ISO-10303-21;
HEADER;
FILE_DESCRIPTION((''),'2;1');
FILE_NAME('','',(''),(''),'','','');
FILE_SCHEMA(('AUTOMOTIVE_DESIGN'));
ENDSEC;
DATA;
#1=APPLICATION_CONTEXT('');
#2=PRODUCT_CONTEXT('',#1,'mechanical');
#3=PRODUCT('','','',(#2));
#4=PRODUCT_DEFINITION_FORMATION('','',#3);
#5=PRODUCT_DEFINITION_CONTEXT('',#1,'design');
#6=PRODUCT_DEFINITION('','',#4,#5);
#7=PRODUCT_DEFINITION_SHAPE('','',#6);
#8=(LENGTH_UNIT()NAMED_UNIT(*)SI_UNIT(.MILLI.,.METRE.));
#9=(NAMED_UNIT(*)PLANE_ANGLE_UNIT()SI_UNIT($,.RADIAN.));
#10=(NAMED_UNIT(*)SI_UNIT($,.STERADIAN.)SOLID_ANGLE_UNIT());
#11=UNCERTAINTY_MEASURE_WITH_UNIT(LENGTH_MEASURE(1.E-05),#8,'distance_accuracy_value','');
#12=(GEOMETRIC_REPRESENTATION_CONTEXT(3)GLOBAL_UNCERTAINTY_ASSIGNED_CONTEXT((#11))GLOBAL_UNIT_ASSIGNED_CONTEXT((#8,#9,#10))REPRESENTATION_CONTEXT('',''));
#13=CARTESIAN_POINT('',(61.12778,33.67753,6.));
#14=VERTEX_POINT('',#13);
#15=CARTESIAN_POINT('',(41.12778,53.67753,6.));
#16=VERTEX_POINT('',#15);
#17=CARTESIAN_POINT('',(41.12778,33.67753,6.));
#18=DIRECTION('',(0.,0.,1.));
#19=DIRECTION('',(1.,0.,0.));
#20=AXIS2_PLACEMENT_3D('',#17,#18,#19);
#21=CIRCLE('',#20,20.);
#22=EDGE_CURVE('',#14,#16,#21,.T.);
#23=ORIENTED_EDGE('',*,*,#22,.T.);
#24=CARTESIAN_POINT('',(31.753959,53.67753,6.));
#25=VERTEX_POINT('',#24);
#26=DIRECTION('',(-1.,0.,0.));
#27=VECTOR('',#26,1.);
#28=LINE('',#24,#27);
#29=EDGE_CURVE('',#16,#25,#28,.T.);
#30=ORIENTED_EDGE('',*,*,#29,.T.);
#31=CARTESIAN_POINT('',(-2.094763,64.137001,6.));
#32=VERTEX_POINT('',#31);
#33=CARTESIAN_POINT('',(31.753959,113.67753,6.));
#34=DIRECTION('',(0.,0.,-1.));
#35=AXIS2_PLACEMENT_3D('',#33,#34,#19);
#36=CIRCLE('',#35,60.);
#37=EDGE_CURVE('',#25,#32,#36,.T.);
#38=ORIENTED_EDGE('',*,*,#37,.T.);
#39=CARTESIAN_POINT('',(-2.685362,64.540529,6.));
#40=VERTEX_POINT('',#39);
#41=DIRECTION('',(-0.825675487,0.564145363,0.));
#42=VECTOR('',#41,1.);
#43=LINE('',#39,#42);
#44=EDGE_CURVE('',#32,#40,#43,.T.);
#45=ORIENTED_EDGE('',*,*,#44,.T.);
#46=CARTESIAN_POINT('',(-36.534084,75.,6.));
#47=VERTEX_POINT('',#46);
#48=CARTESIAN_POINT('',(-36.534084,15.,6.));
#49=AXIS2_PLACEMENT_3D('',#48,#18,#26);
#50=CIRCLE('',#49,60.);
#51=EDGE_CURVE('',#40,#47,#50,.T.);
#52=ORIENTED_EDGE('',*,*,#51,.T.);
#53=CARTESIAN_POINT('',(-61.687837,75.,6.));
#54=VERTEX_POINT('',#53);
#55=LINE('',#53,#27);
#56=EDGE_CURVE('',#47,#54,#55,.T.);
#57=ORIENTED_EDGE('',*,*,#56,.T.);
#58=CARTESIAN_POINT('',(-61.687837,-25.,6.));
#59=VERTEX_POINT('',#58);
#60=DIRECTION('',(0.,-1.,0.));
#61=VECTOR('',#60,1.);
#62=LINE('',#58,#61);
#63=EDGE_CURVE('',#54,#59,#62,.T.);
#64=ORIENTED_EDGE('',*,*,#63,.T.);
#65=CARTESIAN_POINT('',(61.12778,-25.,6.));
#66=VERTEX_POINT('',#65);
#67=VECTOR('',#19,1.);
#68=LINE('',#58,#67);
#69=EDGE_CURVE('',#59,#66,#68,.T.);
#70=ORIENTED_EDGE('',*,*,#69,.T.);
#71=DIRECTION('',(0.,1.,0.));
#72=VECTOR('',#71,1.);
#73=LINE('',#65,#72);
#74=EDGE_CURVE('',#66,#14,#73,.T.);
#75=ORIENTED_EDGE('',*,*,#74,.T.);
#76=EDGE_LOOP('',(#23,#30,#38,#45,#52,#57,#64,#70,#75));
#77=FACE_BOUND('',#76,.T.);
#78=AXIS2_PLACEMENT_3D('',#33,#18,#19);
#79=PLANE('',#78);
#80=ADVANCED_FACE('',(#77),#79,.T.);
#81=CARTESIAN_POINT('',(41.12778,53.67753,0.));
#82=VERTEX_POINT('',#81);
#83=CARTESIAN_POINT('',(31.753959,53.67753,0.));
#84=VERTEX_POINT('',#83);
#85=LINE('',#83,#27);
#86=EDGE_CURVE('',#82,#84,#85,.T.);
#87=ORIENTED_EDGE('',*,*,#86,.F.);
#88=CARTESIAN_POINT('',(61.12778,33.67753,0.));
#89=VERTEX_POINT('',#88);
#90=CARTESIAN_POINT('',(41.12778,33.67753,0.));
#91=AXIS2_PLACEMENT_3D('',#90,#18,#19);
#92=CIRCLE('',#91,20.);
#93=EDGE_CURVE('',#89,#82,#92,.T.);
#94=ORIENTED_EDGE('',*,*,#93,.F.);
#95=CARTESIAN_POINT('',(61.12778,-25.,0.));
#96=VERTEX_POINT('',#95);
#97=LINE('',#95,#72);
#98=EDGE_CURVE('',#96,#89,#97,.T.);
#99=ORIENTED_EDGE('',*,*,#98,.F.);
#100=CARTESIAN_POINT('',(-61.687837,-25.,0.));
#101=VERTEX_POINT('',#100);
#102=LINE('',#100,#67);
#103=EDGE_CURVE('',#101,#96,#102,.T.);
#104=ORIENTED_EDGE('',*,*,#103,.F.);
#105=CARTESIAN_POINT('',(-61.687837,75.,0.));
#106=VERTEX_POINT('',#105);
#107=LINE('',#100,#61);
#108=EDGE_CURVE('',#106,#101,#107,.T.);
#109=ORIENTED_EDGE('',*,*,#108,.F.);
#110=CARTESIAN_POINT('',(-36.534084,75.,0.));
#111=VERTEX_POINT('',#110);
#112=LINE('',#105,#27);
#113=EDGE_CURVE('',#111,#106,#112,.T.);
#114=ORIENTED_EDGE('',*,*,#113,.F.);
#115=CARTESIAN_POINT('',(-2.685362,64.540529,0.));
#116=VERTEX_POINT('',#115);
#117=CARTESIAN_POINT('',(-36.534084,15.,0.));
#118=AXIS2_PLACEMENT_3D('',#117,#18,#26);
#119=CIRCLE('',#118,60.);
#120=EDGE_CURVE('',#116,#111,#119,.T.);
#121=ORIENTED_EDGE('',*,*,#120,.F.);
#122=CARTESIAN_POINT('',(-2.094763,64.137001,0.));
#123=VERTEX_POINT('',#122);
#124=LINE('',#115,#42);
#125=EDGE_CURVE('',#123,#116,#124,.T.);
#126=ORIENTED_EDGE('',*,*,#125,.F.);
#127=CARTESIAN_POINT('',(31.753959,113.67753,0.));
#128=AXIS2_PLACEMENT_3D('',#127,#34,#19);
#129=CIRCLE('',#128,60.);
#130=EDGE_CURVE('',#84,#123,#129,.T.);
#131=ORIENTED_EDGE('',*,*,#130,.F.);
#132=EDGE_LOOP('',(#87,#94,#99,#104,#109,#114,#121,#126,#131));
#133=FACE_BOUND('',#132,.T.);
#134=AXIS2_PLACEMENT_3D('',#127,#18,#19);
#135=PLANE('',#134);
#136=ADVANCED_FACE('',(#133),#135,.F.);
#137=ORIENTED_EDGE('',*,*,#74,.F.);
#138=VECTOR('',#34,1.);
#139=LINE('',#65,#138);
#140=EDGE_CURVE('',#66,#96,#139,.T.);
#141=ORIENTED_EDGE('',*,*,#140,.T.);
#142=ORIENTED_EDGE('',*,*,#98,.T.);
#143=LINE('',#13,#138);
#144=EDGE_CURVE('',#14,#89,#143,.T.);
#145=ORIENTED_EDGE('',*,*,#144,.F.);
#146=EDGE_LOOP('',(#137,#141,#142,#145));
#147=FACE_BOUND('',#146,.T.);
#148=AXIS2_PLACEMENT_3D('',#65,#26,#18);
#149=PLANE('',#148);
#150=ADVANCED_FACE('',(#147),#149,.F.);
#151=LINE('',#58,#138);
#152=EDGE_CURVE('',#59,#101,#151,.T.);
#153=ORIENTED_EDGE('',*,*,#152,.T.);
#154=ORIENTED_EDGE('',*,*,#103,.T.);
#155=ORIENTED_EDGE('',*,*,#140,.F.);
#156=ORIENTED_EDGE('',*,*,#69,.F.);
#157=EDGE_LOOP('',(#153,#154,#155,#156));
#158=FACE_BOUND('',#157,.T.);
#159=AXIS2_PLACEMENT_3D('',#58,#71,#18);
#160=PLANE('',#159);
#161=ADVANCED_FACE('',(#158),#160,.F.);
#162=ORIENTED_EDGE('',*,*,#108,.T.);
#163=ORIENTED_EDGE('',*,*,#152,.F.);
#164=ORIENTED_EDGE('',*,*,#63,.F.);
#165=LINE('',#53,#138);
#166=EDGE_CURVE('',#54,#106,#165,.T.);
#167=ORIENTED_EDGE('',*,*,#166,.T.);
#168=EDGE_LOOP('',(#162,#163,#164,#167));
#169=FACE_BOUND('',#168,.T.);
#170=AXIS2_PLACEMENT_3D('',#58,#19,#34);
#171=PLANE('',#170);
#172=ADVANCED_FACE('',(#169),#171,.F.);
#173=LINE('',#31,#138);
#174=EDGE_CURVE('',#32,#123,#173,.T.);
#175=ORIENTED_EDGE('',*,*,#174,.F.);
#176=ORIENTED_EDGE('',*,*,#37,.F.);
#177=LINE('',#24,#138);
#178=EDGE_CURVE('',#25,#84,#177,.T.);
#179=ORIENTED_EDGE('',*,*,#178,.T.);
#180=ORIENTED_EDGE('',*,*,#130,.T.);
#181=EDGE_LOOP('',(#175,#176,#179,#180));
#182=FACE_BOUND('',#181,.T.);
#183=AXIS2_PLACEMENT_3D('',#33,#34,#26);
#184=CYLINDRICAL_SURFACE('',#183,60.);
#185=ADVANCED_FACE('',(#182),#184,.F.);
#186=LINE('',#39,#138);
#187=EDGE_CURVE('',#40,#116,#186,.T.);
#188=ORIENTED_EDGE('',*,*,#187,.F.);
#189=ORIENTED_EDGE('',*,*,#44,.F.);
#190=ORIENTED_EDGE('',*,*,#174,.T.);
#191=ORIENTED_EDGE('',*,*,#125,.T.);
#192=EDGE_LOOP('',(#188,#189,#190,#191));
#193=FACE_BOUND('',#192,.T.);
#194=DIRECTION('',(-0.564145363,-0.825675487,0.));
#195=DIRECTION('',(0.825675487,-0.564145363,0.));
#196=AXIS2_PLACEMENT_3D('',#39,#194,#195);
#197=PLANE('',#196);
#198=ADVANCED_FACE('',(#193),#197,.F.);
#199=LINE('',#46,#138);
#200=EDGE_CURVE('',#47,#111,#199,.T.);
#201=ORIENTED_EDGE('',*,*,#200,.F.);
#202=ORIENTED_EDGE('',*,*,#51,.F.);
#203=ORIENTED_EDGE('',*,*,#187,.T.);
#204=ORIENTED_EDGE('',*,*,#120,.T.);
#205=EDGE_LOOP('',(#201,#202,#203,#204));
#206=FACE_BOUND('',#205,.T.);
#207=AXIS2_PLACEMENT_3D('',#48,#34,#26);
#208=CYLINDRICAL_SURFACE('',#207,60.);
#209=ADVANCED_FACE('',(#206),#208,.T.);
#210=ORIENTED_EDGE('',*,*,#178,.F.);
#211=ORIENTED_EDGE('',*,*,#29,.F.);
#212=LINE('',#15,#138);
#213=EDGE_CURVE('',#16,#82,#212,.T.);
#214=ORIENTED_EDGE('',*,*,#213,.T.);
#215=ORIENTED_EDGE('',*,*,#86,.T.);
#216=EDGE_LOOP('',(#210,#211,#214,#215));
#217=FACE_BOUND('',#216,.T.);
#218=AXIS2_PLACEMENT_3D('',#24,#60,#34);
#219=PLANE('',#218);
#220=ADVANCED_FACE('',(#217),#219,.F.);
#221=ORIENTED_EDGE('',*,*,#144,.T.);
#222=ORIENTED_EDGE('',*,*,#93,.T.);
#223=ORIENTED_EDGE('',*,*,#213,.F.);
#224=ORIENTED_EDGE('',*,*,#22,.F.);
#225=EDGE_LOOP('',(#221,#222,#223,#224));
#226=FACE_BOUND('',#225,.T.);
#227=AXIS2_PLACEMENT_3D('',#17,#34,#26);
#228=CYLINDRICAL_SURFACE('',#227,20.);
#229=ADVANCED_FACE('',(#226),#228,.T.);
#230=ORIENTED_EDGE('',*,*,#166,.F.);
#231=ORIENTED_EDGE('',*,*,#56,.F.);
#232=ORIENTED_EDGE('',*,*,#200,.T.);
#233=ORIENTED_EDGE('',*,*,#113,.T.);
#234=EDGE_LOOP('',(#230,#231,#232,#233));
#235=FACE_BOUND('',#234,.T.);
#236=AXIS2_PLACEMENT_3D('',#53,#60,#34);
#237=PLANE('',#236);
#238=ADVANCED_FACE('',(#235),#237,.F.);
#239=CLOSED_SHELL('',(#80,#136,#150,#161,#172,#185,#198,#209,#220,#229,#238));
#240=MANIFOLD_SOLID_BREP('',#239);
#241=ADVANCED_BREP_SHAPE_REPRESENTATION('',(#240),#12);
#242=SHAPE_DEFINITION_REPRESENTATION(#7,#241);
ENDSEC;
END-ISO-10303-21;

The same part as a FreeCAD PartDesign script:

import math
import FreeCAD as App
import Part
import Sketcher

V = App.Vector

doc = App.newDocument("Part")
body = doc.addObject("PartDesign::Body", "Body")

# Sketch on XY plane
sketch1 = doc.addObject("Sketcher::SketchObject", "Sketch")
body.addObject(sketch1)
sketch1.AttachmentSupport = (doc.XY_Plane, [""])
sketch1.MapMode = "FlatFace"
sketch1.addGeometry([
    Part.LineSegment(V(-61.687837, -25, 0), V(61.12778, -25, 0)),  # 0
    Part.LineSegment(V(61.12778, -25, 0), V(61.12778, 33.67753, 0)),  # 1
    Part.ArcOfCircle(Part.Circle(V(41.12778, 33.67753, 0), V(0, 0, 1), 20), math.radians(0), math.radians(90)),  # 2
    Part.LineSegment(V(41.12778, 53.67753, 0), V(31.753959, 53.67753, 0)),  # 3
    Part.ArcOfCircle(Part.Circle(V(31.753959, 113.67753, 0), V(0, 0, 1), 60), math.radians(-124.342965), math.radians(-90)),  # 4
    Part.LineSegment(V(-2.094763, 64.137001, 0), V(-2.685362, 64.540529, 0)),  # 5
    Part.ArcOfCircle(Part.Circle(V(-36.534084, 15, 0), V(0, 0, 1), 60), math.radians(55.657035), math.radians(90)),  # 6
    Part.LineSegment(V(-36.534084, 75, 0), V(-61.687837, 75, 0)),  # 7
    Part.LineSegment(V(-61.687837, 75, 0), V(-61.687837, -25, 0)),  # 8
], False)
sketch1.addConstraint([
    Sketcher.Constraint("Coincident", 0, 2, 1, 1),
    Sketcher.Constraint("Tangent", 1, 2, 2, 1),
    Sketcher.Constraint("Tangent", 2, 2, 3, 1),
    Sketcher.Constraint("Tangent", 3, 2, 4, 2),
    Sketcher.Constraint("Tangent", 4, 1, 5, 1),
    Sketcher.Constraint("Tangent", 5, 2, 6, 1),
    Sketcher.Constraint("Tangent", 6, 2, 7, 1),
    Sketcher.Constraint("Coincident", 7, 2, 8, 1),
    Sketcher.Constraint("Coincident", 8, 2, 0, 1),
    Sketcher.Constraint("Horizontal", 0),
    Sketcher.Constraint("Vertical", 1),
    Sketcher.Constraint("Horizontal", 3),
    Sketcher.Constraint("Horizontal", 7),
    Sketcher.Constraint("Vertical", 8),
    Sketcher.Constraint("Equal", 4, 6),
    Sketcher.Constraint("Radius", 2, 20.0),
    Sketcher.Constraint("Radius", 4, 60.0),
    Sketcher.Constraint("DistanceY", 8, 2, 8, 1, 100.0),
    Sketcher.Constraint("DistanceY", -1, 1, 6, 3, 15.0),
    Sketcher.Constraint("DistanceY", -1, 1, 4, 1, 64.137001),
    Sketcher.Constraint("DistanceX", 3, 2, 3, 1, 9.373821),
    Sketcher.Constraint("DistanceY", 1, 1, 1, 2, 58.67753),
    Sketcher.Constraint("DistanceX", 0, 1, 0, 2, 122.815616),
    Sketcher.Constraint("DistanceX", -1, 1, 2, 3, 41.12778),
])
pad1 = doc.addObject("PartDesign::Pad", "Pad")
body.addObject(pad1)
pad1.Profile = sketch1
pad1.Length = 6

doc.recompute()
